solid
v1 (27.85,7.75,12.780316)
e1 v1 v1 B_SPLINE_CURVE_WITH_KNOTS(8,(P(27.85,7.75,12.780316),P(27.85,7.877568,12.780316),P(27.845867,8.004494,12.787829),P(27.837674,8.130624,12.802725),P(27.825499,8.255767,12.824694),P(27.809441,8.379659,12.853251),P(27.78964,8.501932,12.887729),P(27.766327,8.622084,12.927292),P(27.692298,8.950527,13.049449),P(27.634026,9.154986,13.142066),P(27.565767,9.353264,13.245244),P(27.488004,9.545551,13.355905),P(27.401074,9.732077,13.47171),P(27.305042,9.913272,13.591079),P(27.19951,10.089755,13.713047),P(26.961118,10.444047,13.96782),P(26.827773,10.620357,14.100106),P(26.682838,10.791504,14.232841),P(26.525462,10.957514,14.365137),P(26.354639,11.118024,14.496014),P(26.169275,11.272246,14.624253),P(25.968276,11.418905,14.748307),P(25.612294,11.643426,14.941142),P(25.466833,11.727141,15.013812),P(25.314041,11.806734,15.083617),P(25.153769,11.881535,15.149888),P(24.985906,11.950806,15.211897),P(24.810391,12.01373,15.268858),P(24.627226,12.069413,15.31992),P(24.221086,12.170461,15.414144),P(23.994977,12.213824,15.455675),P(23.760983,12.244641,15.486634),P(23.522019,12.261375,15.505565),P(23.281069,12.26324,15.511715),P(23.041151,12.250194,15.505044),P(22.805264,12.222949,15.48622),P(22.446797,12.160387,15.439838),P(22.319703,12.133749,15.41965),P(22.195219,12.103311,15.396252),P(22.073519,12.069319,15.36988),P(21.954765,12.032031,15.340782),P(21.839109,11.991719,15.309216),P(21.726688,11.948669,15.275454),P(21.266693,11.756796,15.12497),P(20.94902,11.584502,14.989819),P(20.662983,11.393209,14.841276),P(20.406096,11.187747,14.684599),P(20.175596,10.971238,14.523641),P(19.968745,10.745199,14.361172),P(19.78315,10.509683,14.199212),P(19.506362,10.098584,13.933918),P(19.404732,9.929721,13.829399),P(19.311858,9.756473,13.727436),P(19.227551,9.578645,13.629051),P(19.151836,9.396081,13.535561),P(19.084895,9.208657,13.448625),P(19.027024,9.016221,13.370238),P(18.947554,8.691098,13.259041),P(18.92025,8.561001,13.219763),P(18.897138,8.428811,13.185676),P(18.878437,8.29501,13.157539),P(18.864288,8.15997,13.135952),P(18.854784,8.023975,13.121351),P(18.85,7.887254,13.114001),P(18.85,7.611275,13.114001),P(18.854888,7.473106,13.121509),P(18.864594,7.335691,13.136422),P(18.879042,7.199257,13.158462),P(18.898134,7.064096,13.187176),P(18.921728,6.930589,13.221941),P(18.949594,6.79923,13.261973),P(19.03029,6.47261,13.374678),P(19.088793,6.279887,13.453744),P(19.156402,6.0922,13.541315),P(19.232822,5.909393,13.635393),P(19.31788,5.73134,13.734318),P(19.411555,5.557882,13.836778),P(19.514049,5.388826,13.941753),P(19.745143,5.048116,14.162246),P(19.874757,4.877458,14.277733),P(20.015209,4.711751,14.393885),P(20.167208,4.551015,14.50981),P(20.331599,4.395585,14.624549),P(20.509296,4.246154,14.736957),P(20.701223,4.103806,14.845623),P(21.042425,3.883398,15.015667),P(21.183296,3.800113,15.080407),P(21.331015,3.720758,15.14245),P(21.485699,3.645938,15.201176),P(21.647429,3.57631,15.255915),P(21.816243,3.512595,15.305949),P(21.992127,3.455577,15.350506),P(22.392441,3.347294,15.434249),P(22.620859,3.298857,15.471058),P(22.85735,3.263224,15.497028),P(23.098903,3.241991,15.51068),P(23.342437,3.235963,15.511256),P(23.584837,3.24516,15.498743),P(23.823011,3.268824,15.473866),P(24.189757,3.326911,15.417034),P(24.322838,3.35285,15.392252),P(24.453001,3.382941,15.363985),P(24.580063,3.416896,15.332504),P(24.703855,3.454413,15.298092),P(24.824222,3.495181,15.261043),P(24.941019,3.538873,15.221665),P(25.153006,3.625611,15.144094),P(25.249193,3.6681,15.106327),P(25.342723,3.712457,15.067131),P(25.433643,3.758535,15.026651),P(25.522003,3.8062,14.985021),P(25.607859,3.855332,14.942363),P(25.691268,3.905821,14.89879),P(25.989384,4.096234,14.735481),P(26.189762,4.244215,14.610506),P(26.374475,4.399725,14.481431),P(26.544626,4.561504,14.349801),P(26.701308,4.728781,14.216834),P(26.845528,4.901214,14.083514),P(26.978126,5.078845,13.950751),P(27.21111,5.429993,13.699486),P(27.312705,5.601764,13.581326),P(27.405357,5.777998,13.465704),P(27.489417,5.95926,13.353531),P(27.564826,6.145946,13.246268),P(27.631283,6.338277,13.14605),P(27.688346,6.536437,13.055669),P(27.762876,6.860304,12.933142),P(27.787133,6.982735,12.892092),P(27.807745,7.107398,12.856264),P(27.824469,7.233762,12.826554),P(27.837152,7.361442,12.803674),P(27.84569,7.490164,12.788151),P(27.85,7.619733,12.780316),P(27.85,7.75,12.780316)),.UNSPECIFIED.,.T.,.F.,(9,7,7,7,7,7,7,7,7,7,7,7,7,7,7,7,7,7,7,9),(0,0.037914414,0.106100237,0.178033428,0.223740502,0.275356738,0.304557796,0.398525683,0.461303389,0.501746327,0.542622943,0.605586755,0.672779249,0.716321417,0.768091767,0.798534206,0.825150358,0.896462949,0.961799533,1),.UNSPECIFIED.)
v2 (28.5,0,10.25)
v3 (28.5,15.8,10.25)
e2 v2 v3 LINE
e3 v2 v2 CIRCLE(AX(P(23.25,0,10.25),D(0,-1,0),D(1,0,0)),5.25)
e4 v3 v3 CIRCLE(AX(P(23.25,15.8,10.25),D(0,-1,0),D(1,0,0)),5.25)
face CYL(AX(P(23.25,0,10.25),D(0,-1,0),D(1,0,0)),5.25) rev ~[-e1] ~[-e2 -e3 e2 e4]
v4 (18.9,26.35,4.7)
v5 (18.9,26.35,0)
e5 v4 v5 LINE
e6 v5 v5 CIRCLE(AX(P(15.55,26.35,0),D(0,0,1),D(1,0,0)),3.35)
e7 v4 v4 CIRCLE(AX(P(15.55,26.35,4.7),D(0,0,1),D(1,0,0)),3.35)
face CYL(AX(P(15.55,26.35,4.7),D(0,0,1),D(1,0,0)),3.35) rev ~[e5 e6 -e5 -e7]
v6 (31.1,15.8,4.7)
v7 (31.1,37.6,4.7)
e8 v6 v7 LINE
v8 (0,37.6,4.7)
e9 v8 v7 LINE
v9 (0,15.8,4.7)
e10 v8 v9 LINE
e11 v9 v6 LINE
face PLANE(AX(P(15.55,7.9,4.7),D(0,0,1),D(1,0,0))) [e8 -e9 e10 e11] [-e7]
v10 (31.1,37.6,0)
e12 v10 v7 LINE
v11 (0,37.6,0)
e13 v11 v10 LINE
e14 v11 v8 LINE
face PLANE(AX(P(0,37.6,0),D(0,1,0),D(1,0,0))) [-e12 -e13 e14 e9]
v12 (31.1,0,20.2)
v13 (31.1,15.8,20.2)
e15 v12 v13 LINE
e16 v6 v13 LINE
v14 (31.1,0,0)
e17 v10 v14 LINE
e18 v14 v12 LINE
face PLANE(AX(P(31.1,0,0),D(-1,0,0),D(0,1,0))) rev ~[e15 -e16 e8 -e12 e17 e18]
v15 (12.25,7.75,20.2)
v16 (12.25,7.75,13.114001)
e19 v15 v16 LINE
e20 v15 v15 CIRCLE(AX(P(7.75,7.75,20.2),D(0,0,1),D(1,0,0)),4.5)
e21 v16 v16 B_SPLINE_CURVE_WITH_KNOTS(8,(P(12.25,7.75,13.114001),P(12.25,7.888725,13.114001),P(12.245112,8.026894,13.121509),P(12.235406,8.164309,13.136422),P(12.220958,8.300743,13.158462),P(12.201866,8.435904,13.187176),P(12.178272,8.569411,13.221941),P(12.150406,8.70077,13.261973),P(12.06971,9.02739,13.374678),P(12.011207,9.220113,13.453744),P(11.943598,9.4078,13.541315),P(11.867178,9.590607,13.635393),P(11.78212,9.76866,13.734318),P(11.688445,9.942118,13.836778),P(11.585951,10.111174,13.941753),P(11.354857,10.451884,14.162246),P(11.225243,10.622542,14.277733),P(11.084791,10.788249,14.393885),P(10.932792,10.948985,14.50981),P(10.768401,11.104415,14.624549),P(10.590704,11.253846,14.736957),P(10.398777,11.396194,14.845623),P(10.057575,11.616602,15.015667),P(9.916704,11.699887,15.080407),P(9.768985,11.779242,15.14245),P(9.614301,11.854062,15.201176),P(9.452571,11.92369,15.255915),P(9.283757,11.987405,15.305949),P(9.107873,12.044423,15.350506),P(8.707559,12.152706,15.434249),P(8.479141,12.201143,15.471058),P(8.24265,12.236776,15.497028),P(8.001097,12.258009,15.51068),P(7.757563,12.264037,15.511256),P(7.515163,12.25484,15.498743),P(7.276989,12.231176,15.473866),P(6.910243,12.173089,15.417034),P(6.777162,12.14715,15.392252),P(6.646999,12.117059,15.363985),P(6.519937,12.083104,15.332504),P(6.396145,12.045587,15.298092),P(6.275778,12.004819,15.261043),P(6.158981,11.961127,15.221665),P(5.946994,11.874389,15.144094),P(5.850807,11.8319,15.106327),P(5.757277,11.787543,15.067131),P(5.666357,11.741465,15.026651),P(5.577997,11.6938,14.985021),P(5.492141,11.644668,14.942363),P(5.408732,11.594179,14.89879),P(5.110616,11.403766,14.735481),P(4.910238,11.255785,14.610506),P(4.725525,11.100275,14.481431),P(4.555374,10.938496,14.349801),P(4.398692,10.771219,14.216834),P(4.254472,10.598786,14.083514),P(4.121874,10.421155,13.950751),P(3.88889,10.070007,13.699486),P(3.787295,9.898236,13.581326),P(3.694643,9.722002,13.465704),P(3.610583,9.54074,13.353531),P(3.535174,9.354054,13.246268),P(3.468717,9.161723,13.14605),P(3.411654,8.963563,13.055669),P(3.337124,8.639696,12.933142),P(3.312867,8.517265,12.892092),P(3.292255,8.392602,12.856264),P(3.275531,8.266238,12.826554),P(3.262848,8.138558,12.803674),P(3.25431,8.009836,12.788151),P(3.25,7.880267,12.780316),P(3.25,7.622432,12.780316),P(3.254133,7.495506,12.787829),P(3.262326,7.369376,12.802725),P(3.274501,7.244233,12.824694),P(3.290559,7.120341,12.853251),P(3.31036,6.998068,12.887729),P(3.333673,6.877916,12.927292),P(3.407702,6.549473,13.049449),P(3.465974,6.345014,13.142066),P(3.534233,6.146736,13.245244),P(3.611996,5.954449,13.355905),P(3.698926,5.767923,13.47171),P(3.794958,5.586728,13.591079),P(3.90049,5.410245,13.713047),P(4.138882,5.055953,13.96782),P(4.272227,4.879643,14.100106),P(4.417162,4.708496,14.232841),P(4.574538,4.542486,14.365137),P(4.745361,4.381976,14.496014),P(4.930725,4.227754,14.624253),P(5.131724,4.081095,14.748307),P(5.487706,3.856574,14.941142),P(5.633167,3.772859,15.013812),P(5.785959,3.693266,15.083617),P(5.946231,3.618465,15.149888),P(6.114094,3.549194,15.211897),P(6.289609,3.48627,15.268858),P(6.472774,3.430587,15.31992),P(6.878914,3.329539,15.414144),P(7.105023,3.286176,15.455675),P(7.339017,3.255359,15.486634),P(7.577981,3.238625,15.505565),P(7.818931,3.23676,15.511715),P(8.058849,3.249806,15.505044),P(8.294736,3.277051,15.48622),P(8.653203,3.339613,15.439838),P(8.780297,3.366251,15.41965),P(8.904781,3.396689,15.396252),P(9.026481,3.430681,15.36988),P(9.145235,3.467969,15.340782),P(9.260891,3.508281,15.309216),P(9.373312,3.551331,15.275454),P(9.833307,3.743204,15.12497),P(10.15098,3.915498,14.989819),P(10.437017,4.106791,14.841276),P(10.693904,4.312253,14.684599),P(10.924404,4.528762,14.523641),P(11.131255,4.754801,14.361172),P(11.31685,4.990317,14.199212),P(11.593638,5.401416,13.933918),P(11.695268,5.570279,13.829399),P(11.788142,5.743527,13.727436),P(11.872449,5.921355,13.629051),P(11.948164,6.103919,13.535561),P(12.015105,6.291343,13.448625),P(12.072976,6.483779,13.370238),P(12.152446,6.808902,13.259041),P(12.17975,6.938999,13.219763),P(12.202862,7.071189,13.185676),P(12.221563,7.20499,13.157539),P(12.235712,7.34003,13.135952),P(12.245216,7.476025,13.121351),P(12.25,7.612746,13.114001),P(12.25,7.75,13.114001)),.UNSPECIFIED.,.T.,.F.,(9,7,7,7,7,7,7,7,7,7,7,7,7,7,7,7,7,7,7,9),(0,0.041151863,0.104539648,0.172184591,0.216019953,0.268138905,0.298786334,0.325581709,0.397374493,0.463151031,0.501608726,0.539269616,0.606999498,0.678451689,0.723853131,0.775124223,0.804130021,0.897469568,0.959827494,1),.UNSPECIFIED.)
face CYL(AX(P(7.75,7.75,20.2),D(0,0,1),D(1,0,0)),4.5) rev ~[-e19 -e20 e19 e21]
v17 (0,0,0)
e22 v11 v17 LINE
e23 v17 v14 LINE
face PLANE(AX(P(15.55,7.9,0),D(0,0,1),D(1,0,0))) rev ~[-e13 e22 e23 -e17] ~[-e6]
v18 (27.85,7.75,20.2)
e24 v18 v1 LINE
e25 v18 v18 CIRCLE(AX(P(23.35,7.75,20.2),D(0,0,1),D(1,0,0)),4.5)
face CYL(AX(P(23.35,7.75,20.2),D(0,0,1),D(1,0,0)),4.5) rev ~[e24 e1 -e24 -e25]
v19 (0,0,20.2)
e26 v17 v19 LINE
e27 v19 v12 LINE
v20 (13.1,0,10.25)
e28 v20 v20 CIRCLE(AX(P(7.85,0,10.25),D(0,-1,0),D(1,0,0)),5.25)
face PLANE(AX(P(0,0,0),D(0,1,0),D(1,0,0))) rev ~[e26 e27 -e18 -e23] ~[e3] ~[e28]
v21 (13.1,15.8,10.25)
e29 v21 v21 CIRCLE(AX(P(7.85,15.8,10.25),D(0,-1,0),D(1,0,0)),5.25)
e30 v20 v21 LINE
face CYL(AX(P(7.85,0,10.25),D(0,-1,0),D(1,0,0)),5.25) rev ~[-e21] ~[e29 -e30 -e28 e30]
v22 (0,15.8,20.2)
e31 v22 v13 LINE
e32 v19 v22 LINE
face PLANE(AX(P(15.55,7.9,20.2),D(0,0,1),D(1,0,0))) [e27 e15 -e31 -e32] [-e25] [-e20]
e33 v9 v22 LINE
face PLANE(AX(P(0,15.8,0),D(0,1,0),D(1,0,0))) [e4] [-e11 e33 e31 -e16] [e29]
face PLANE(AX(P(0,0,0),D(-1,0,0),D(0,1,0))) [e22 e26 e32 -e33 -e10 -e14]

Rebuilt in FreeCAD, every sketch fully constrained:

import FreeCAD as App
import Part
import Sketcher
from FreeCAD import Vector
Q = App.Units.Quantity


def add_polygon(sketch, points):
    """Adds a closed chain of lines whose ends are joined by coincident constraints."""
    first, n = sketch.GeometryCount, len(points)
    for a, b in zip(points, points[1:] + points[:1]):
        sketch.addGeometry(Part.LineSegment(App.Vector(*a, 0), App.Vector(*b, 0)), False)
    for i in range(n):
        sketch.addConstraint(Sketcher.Constraint("Coincident", first + i, 2, first + (i + 1) % n, 1))

doc = App.newDocument("Part")
body = doc.addObject("PartDesign::Body", "Body")

sketch1 = body.newObject("Sketcher::SketchObject", "Sketch")
sketch1.AttachmentSupport = (doc.getObject("XY_Plane"), [""])
sketch1.MapMode = "FlatFace"
add_polygon(sketch1, [(0, 16), (0, 0), (31, 0), (31, 16)])
sketch1.addConstraint([
    Sketcher.Constraint("Vertical", 0),
    Sketcher.Constraint("Horizontal", 1),
    Sketcher.Constraint("Vertical", 2),
    Sketcher.Constraint("Horizontal", 3),
    Sketcher.Constraint("Coincident", 0, 2, -1, 1),
    Sketcher.Constraint("DistanceX", 1, 1, 1, 2, Q("31.1 mm")),
    Sketcher.Constraint("DistanceY", 0, 2, 0, 1, Q("15.8 mm")),
])
pad1 = body.newObject("PartDesign::Pad", "Pad")
pad1.Profile = sketch1
pad1.Length = 20.2

sketch2 = body.newObject("Sketcher::SketchObject", "Sketch001")
sketch2.AttachmentSupport = (doc.getObject("XY_Plane"), [""])
sketch2.MapMode = "FlatFace"
add_polygon(sketch2, [(0, 0), (31, 0), (31, 38), (0, 38)])
sketch2.addConstraint([
    Sketcher.Constraint("Horizontal", 0),
    Sketcher.Constraint("Vertical", 1),
    Sketcher.Constraint("Horizontal", 2),
    Sketcher.Constraint("Vertical", 3),
    Sketcher.Constraint("Coincident", 3, 2, -1, 1),
    Sketcher.Constraint("DistanceX", 0, 1, 0, 2, Q("31.1 mm")),
    Sketcher.Constraint("DistanceY", 1, 1, 1, 2, Q("37.6 mm")),
])
pad2 = body.newObject("PartDesign::Pad", "Pad001")
pad2.Profile = sketch2
pad2.Length = 4.7

sketch3 = body.newObject("Sketcher::SketchObject", "Sketch002")
sketch3.AttachmentSupport = (doc.getObject("XZ_Plane"), [""])
sketch3.MapMode = "FlatFace"
sketch3.addGeometry([
    Part.Circle(Vector(8, 10, 0), Vector(0, 0, 1), 5),
    Part.Circle(Vector(23, 10, 0), Vector(0, 0, 1), 5),
], False)
sketch3.addConstraint([
    Sketcher.Constraint("Equal", 0, 1),
    Sketcher.Constraint("Horizontal", 0, 3, 1, 3),
    Sketcher.Constraint("Diameter", 0, Q("10.5 mm")),
    Sketcher.Constraint("DistanceX", 0, 3, 1, 3, Q("15.4 mm")),
    Sketcher.Constraint("DistanceX", -1, 1, 0, 3, Q("7.85 mm")),
    Sketcher.Constraint("DistanceY", -1, 1, 0, 3, Q("10.25 mm")),
])
pocket1 = body.newObject("PartDesign::Pocket", "Pocket")
pocket1.Profile = sketch3
pocket1.Type = "ThroughAll"

sketch4 = body.newObject("Sketcher::SketchObject", "Sketch003")
sketch4.AttachmentSupport = (doc.getObject("XY_Plane"), [""])
sketch4.MapMode = "FlatFace"
sketch4.AttachmentOffset = App.Placement(Vector(0, 0, 4.7), App.Rotation())
sketch4.addGeometry(Part.Circle(Vector(15.6, 26.4, 0), Vector(0, 0, 1), 3.4), False)
sketch4.addConstraint([
    Sketcher.Constraint("Diameter", 0, Q("6.7 mm")),
    Sketcher.Constraint("DistanceX", -1, 1, 0, 3, Q("15.55 mm")),
    Sketcher.Constraint("DistanceY", -1, 1, 0, 3, Q("26.35 mm")),
])
pocket2 = body.newObject("PartDesign::Pocket", "Pocket001")
pocket2.Profile = sketch4
pocket2.Type = "ThroughAll"

sketch5 = body.newObject("Sketcher::SketchObject", "Sketch004")
sketch5.AttachmentSupport = (doc.getObject("XY_Plane"), [""])
sketch5.MapMode = "FlatFace"
sketch5.AttachmentOffset = App.Placement(Vector(0, 0, 20.2), App.Rotation())
sketch5.addGeometry([
    Part.Circle(Vector(7.8, 7.8, 0), Vector(0, 0, 1), 4.5),
    Part.Circle(Vector(23.4, 7.8, 0), Vector(0, 0, 1), 4.5),
], False)
sketch5.addConstraint([
    Sketcher.Constraint("Equal", 0, 1),
    Sketcher.Constraint("Horizontal", 0, 3, 1, 3),
    Sketcher.Constraint("Diameter", 0, Q("9 mm")),
    Sketcher.Constraint("DistanceX", 0, 3, 1, 3, Q("15.6 mm")),
    Sketcher.Constraint("DistanceX", -1, 1, 0, 3, Q("7.75 mm")),
    Sketcher.Constraint("DistanceY", -1, 1, 0, 3, Q("7.75 mm")),
])
pocket3 = body.newObject("PartDesign::Pocket", "Pocket002")
pocket3.Profile = sketch5
pocket3.Length = 9

doc.recompute()
